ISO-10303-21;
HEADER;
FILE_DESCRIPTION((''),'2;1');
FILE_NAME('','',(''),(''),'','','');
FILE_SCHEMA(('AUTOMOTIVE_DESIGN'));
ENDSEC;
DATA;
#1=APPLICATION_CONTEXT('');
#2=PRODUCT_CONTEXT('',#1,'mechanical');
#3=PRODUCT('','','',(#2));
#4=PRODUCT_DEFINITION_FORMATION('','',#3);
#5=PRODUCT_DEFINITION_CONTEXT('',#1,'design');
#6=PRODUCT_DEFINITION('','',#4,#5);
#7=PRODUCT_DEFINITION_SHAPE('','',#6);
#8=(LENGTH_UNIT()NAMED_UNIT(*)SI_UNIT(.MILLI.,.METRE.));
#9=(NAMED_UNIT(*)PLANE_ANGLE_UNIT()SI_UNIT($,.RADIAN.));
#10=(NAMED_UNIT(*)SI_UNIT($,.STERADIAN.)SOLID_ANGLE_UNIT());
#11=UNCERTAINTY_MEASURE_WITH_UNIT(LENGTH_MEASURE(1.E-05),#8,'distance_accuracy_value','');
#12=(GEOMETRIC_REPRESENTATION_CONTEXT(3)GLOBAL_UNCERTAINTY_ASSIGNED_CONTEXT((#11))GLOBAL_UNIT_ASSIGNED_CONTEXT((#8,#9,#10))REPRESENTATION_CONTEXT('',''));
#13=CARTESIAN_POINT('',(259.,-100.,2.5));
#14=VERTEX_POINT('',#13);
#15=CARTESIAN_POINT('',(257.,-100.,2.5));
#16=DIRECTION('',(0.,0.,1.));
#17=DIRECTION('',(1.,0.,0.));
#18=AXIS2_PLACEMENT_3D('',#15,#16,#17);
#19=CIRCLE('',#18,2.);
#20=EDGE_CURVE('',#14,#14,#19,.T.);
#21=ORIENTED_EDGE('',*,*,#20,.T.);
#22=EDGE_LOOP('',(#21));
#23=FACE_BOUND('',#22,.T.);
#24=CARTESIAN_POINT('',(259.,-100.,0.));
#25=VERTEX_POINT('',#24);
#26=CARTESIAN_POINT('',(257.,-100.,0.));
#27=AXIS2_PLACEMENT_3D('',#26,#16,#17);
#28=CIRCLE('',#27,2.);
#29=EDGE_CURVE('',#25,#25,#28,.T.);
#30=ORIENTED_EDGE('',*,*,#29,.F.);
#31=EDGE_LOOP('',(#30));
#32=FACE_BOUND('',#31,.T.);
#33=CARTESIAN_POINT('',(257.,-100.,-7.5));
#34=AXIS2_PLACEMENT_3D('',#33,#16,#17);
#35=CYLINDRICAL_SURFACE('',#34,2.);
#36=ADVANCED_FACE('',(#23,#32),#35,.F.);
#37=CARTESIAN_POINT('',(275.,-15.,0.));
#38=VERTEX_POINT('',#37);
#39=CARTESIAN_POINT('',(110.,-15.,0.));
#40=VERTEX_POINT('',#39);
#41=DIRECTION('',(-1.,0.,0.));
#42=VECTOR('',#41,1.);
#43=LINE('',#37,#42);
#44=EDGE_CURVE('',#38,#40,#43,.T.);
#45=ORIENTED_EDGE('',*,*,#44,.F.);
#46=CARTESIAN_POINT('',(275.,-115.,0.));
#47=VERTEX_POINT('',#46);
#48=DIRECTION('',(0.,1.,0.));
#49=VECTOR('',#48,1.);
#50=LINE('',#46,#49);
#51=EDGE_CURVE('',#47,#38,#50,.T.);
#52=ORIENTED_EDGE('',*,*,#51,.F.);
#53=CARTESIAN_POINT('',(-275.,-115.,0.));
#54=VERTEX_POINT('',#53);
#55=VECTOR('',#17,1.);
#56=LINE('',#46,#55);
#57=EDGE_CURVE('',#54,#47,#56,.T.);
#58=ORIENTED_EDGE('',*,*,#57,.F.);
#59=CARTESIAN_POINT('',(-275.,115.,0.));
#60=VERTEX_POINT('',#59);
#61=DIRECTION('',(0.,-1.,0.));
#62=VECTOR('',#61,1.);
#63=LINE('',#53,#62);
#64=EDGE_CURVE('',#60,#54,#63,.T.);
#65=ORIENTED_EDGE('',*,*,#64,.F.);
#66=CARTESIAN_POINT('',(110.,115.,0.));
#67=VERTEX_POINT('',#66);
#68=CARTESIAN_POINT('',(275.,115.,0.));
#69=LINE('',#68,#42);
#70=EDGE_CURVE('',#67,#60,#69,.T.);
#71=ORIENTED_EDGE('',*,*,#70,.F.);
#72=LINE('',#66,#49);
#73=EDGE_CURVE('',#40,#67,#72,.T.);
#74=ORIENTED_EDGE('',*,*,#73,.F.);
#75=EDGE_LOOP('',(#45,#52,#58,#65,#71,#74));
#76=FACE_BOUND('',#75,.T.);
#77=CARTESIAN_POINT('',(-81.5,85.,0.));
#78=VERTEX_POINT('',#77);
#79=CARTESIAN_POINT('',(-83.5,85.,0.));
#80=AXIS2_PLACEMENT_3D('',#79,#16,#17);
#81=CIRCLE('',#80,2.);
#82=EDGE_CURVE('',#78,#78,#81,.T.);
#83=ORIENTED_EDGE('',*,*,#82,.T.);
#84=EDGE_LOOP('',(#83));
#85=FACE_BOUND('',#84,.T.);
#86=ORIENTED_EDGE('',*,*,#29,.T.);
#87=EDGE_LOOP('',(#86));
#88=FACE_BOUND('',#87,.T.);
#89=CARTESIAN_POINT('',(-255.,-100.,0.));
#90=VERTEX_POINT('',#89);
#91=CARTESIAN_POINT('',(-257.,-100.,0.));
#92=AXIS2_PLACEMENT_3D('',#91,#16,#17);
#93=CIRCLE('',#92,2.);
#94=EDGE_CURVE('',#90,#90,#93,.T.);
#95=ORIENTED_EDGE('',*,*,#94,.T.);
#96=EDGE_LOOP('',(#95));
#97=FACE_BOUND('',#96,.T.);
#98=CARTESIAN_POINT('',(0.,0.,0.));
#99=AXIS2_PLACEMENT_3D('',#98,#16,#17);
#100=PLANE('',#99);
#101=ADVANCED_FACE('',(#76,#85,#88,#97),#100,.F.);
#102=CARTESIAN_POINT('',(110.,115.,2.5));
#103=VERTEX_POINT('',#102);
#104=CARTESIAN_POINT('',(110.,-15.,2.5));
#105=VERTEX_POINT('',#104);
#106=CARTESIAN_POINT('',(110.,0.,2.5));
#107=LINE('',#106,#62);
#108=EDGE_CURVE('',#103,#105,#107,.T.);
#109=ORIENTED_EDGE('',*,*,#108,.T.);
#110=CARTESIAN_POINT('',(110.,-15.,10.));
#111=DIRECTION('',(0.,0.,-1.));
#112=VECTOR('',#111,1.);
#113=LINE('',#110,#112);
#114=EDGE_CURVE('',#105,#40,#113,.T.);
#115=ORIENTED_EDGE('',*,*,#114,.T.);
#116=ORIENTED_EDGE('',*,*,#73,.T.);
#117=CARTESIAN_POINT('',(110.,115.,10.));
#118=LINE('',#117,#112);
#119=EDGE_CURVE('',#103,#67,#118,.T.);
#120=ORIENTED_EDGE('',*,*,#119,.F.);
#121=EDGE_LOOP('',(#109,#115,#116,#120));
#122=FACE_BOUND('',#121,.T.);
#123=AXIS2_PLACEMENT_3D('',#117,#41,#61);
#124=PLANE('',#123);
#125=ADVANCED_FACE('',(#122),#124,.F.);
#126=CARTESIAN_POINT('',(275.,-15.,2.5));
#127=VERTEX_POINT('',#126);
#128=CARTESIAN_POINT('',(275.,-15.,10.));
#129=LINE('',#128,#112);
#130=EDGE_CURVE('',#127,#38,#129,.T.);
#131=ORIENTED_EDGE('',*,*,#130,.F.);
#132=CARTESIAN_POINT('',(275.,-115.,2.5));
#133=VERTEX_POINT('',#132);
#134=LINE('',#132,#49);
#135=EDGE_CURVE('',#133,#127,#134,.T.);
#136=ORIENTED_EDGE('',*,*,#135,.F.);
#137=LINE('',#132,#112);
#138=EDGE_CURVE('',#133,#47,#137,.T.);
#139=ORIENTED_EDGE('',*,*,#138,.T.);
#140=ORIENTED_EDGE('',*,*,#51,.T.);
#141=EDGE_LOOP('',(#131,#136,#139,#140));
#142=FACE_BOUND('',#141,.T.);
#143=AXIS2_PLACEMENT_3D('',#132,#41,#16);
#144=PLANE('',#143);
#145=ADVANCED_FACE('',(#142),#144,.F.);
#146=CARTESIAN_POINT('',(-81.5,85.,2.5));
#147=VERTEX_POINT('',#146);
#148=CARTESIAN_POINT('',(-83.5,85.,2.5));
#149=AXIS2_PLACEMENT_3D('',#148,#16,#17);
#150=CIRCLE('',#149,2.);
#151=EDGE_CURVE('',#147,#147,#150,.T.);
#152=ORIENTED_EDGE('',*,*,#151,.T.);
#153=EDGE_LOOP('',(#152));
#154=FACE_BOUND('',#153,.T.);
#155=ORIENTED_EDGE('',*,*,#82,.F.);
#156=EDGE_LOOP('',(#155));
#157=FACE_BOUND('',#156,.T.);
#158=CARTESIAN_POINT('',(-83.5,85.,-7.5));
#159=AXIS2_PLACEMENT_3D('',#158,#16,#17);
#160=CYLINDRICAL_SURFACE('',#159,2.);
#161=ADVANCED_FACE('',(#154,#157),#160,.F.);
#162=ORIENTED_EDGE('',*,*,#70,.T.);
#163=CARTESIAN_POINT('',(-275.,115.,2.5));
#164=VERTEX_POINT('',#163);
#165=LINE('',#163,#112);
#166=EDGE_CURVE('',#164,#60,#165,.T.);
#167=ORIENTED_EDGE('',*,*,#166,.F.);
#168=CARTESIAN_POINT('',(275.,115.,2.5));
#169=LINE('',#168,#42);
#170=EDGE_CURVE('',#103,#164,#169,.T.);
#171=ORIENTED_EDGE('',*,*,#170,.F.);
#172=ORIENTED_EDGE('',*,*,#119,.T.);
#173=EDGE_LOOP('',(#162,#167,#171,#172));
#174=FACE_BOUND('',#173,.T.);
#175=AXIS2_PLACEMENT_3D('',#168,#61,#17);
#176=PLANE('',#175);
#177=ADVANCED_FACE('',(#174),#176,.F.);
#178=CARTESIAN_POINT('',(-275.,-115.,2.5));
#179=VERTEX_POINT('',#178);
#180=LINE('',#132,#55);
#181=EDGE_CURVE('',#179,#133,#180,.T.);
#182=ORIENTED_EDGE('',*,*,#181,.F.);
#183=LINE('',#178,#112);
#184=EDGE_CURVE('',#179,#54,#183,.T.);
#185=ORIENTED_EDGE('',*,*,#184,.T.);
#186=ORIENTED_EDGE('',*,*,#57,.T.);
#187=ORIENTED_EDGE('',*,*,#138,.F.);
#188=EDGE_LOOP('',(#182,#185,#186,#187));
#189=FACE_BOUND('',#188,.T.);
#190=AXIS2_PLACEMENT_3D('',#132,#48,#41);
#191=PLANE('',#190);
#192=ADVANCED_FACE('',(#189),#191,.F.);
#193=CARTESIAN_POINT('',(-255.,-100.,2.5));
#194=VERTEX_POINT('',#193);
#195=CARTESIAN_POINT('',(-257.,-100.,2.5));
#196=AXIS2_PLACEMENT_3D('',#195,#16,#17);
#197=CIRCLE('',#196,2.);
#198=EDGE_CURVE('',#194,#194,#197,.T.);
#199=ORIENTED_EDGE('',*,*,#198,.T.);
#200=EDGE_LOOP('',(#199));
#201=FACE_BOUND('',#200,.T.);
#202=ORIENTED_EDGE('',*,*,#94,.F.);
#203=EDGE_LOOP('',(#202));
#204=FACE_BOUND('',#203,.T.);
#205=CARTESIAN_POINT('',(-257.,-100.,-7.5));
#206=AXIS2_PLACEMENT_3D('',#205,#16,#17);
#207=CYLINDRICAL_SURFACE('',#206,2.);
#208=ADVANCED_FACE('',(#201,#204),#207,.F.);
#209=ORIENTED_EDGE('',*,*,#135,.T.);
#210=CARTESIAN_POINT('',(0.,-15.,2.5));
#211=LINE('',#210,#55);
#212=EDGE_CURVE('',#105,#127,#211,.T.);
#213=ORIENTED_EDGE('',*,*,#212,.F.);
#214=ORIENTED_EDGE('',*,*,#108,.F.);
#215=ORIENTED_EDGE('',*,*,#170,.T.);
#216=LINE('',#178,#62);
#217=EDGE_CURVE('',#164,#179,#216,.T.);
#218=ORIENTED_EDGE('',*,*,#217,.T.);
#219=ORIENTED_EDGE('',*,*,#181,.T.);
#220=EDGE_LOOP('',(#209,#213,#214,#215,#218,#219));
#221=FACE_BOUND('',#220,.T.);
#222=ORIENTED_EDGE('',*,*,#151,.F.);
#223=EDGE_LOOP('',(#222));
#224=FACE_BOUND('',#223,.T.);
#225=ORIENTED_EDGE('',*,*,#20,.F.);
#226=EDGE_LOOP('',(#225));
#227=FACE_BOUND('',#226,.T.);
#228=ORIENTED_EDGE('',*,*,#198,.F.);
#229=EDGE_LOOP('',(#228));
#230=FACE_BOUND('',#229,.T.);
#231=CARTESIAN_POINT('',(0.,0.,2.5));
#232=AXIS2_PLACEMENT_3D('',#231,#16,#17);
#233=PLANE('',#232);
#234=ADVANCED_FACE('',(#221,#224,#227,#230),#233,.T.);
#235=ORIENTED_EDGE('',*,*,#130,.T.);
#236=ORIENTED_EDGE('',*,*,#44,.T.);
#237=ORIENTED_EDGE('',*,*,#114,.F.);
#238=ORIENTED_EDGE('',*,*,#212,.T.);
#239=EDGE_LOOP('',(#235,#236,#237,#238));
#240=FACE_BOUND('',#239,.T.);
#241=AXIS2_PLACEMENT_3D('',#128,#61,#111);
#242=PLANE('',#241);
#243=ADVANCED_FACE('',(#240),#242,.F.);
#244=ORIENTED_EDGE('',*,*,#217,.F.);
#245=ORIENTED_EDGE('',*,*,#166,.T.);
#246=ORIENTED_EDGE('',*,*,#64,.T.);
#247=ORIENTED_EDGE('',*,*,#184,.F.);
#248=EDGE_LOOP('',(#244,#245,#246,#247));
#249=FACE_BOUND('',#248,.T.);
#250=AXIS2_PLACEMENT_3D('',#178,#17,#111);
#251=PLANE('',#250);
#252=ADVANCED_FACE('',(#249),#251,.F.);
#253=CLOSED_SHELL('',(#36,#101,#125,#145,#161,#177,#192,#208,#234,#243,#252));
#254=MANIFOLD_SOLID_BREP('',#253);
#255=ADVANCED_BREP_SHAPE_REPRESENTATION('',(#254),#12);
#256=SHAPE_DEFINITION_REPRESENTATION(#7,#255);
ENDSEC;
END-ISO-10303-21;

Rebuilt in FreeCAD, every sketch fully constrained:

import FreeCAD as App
import Part
import Sketcher

doc = App.newDocument("Part")
body = doc.addObject("PartDesign::Body", "Body")

# Sketch on XY plane
sketch1 = doc.addObject("Sketcher::SketchObject", "Sketch")
body.addObject(sketch1)
sketch1.AttachmentSupport = (doc.XY_Plane, [""])
sketch1.MapMode = "FlatFace"
sketch1.addGeometry([
    Part.LineSegment(App.Vector(-275, 115, 0), App.Vector(-275, -115, 0)),
    Part.LineSegment(App.Vector(-275, -115, 0), App.Vector(275, -115, 0)),
    Part.LineSegment(App.Vector(275, -115, 0), App.Vector(275, 115, 0)),
    Part.LineSegment(App.Vector(275, 115, 0), App.Vector(-275, 115, 0)),
], False)
sketch1.addConstraint([
    Sketcher.Constraint("Coincident", 0, 2, 1, 1),
    Sketcher.Constraint("Coincident", 1, 2, 2, 1),
    Sketcher.Constraint("Coincident", 2, 2, 3, 1),
    Sketcher.Constraint("Coincident", 3, 2, 0, 1),
    Sketcher.Constraint("Vertical", 0),
    Sketcher.Constraint("Horizontal", 1),
    Sketcher.Constraint("Vertical", 2),
    Sketcher.Constraint("Horizontal", 3),
    Sketcher.Constraint("Symmetric", 0, 2, 2, 2, -1, 1),
    Sketcher.Constraint("DistanceX", 1, 1, 1, 2, 550.0),
    Sketcher.Constraint("DistanceY", 0, 2, 0, 1, 230.0),
])
pad1 = doc.addObject("PartDesign::Pad", "Pad")
body.addObject(pad1)
pad1.Profile = sketch1
pad1.Length = 2.5

# Sketch on XY plane
sketch2 = doc.addObject("Sketcher::SketchObject", "Sketch001")
body.addObject(sketch2)
sketch2.AttachmentSupport = (doc.XY_Plane, [""])
sketch2.MapMode = "FlatFace"
sketch2.addGeometry([
    Part.LineSegment(App.Vector(275, 115, 0), App.Vector(275, -15, 0)),
    Part.LineSegment(App.Vector(275, -15, 0), App.Vector(110, -15, 0)),
    Part.LineSegment(App.Vector(110, -15, 0), App.Vector(110, 115, 0)),
    Part.LineSegment(App.Vector(110, 115, 0), App.Vector(275, 115, 0)),
], False)
sketch2.addConstraint([
    Sketcher.Constraint("Coincident", 0, 2, 1, 1),
    Sketcher.Constraint("Coincident", 1, 2, 2, 1),
    Sketcher.Constraint("Coincident", 2, 2, 3, 1),
    Sketcher.Constraint("Coincident", 3, 2, 0, 1),
    Sketcher.Constraint("Vertical", 0),
    Sketcher.Constraint("Horizontal", 1),
    Sketcher.Constraint("Vertical", 2),
    Sketcher.Constraint("Horizontal", 3),
    Sketcher.Constraint("DistanceX", 1, 2, 1, 1, 165.0),
    Sketcher.Constraint("DistanceY", 0, 2, 0, 1, 130.0),
    Sketcher.Constraint("DistanceX", -1, 1, 0, 2, 275.0),
    Sketcher.Constraint("DistanceY", 0, 2, -1, 1, 15.0),
])
pocket1 = doc.addObject("PartDesign::Pocket", "Pocket")
body.addObject(pocket1)
pocket1.Profile = sketch2
pocket1.Length = 10
pocket1.Reversed = True

# Sketch on XY plane
sketch3 = doc.addObject("Sketcher::SketchObject", "Sketch002")
body.addObject(sketch3)
sketch3.AttachmentSupport = (doc.XY_Plane, [""])
sketch3.MapMode = "FlatFace"
sketch3.AttachmentOffset = App.Placement(App.Vector(0, 0, 2.5), App.Rotation())
sketch3.addGeometry([
    Part.Circle(App.Vector(-83.5, 85, 0), App.Vector(0, 0, 1), 2),
    Part.Circle(App.Vector(-257, -100, 0), App.Vector(0, 0, 1), 2),
    Part.Circle(App.Vector(257, -100, 0), App.Vector(0, 0, 1), 2),
], False)
sketch3.addConstraint([
    Sketcher.Constraint("Equal", 0, 1),
    Sketcher.Constraint("Equal", 1, 2),
    Sketcher.Constraint("Symmetric", 1, 3, 2, 3, -2),
    Sketcher.Constraint("Diameter", 0, 4.0),
    Sketcher.Constraint("DistanceY", -1, 1, 0, 3, 85.0),
    Sketcher.Constraint("DistanceX", 1, 3, -1, 1, 257.0),
    Sketcher.Constraint("DistanceY", 1, 3, -1, 1, 100.0),
    Sketcher.Constraint("DistanceX", 0, 3, -1, 1, 83.5),
])
pocket2 = doc.addObject("PartDesign::Pocket", "Pocket001")
body.addObject(pocket2)
pocket2.Profile = sketch3
pocket2.Length = 10

doc.recompute()
